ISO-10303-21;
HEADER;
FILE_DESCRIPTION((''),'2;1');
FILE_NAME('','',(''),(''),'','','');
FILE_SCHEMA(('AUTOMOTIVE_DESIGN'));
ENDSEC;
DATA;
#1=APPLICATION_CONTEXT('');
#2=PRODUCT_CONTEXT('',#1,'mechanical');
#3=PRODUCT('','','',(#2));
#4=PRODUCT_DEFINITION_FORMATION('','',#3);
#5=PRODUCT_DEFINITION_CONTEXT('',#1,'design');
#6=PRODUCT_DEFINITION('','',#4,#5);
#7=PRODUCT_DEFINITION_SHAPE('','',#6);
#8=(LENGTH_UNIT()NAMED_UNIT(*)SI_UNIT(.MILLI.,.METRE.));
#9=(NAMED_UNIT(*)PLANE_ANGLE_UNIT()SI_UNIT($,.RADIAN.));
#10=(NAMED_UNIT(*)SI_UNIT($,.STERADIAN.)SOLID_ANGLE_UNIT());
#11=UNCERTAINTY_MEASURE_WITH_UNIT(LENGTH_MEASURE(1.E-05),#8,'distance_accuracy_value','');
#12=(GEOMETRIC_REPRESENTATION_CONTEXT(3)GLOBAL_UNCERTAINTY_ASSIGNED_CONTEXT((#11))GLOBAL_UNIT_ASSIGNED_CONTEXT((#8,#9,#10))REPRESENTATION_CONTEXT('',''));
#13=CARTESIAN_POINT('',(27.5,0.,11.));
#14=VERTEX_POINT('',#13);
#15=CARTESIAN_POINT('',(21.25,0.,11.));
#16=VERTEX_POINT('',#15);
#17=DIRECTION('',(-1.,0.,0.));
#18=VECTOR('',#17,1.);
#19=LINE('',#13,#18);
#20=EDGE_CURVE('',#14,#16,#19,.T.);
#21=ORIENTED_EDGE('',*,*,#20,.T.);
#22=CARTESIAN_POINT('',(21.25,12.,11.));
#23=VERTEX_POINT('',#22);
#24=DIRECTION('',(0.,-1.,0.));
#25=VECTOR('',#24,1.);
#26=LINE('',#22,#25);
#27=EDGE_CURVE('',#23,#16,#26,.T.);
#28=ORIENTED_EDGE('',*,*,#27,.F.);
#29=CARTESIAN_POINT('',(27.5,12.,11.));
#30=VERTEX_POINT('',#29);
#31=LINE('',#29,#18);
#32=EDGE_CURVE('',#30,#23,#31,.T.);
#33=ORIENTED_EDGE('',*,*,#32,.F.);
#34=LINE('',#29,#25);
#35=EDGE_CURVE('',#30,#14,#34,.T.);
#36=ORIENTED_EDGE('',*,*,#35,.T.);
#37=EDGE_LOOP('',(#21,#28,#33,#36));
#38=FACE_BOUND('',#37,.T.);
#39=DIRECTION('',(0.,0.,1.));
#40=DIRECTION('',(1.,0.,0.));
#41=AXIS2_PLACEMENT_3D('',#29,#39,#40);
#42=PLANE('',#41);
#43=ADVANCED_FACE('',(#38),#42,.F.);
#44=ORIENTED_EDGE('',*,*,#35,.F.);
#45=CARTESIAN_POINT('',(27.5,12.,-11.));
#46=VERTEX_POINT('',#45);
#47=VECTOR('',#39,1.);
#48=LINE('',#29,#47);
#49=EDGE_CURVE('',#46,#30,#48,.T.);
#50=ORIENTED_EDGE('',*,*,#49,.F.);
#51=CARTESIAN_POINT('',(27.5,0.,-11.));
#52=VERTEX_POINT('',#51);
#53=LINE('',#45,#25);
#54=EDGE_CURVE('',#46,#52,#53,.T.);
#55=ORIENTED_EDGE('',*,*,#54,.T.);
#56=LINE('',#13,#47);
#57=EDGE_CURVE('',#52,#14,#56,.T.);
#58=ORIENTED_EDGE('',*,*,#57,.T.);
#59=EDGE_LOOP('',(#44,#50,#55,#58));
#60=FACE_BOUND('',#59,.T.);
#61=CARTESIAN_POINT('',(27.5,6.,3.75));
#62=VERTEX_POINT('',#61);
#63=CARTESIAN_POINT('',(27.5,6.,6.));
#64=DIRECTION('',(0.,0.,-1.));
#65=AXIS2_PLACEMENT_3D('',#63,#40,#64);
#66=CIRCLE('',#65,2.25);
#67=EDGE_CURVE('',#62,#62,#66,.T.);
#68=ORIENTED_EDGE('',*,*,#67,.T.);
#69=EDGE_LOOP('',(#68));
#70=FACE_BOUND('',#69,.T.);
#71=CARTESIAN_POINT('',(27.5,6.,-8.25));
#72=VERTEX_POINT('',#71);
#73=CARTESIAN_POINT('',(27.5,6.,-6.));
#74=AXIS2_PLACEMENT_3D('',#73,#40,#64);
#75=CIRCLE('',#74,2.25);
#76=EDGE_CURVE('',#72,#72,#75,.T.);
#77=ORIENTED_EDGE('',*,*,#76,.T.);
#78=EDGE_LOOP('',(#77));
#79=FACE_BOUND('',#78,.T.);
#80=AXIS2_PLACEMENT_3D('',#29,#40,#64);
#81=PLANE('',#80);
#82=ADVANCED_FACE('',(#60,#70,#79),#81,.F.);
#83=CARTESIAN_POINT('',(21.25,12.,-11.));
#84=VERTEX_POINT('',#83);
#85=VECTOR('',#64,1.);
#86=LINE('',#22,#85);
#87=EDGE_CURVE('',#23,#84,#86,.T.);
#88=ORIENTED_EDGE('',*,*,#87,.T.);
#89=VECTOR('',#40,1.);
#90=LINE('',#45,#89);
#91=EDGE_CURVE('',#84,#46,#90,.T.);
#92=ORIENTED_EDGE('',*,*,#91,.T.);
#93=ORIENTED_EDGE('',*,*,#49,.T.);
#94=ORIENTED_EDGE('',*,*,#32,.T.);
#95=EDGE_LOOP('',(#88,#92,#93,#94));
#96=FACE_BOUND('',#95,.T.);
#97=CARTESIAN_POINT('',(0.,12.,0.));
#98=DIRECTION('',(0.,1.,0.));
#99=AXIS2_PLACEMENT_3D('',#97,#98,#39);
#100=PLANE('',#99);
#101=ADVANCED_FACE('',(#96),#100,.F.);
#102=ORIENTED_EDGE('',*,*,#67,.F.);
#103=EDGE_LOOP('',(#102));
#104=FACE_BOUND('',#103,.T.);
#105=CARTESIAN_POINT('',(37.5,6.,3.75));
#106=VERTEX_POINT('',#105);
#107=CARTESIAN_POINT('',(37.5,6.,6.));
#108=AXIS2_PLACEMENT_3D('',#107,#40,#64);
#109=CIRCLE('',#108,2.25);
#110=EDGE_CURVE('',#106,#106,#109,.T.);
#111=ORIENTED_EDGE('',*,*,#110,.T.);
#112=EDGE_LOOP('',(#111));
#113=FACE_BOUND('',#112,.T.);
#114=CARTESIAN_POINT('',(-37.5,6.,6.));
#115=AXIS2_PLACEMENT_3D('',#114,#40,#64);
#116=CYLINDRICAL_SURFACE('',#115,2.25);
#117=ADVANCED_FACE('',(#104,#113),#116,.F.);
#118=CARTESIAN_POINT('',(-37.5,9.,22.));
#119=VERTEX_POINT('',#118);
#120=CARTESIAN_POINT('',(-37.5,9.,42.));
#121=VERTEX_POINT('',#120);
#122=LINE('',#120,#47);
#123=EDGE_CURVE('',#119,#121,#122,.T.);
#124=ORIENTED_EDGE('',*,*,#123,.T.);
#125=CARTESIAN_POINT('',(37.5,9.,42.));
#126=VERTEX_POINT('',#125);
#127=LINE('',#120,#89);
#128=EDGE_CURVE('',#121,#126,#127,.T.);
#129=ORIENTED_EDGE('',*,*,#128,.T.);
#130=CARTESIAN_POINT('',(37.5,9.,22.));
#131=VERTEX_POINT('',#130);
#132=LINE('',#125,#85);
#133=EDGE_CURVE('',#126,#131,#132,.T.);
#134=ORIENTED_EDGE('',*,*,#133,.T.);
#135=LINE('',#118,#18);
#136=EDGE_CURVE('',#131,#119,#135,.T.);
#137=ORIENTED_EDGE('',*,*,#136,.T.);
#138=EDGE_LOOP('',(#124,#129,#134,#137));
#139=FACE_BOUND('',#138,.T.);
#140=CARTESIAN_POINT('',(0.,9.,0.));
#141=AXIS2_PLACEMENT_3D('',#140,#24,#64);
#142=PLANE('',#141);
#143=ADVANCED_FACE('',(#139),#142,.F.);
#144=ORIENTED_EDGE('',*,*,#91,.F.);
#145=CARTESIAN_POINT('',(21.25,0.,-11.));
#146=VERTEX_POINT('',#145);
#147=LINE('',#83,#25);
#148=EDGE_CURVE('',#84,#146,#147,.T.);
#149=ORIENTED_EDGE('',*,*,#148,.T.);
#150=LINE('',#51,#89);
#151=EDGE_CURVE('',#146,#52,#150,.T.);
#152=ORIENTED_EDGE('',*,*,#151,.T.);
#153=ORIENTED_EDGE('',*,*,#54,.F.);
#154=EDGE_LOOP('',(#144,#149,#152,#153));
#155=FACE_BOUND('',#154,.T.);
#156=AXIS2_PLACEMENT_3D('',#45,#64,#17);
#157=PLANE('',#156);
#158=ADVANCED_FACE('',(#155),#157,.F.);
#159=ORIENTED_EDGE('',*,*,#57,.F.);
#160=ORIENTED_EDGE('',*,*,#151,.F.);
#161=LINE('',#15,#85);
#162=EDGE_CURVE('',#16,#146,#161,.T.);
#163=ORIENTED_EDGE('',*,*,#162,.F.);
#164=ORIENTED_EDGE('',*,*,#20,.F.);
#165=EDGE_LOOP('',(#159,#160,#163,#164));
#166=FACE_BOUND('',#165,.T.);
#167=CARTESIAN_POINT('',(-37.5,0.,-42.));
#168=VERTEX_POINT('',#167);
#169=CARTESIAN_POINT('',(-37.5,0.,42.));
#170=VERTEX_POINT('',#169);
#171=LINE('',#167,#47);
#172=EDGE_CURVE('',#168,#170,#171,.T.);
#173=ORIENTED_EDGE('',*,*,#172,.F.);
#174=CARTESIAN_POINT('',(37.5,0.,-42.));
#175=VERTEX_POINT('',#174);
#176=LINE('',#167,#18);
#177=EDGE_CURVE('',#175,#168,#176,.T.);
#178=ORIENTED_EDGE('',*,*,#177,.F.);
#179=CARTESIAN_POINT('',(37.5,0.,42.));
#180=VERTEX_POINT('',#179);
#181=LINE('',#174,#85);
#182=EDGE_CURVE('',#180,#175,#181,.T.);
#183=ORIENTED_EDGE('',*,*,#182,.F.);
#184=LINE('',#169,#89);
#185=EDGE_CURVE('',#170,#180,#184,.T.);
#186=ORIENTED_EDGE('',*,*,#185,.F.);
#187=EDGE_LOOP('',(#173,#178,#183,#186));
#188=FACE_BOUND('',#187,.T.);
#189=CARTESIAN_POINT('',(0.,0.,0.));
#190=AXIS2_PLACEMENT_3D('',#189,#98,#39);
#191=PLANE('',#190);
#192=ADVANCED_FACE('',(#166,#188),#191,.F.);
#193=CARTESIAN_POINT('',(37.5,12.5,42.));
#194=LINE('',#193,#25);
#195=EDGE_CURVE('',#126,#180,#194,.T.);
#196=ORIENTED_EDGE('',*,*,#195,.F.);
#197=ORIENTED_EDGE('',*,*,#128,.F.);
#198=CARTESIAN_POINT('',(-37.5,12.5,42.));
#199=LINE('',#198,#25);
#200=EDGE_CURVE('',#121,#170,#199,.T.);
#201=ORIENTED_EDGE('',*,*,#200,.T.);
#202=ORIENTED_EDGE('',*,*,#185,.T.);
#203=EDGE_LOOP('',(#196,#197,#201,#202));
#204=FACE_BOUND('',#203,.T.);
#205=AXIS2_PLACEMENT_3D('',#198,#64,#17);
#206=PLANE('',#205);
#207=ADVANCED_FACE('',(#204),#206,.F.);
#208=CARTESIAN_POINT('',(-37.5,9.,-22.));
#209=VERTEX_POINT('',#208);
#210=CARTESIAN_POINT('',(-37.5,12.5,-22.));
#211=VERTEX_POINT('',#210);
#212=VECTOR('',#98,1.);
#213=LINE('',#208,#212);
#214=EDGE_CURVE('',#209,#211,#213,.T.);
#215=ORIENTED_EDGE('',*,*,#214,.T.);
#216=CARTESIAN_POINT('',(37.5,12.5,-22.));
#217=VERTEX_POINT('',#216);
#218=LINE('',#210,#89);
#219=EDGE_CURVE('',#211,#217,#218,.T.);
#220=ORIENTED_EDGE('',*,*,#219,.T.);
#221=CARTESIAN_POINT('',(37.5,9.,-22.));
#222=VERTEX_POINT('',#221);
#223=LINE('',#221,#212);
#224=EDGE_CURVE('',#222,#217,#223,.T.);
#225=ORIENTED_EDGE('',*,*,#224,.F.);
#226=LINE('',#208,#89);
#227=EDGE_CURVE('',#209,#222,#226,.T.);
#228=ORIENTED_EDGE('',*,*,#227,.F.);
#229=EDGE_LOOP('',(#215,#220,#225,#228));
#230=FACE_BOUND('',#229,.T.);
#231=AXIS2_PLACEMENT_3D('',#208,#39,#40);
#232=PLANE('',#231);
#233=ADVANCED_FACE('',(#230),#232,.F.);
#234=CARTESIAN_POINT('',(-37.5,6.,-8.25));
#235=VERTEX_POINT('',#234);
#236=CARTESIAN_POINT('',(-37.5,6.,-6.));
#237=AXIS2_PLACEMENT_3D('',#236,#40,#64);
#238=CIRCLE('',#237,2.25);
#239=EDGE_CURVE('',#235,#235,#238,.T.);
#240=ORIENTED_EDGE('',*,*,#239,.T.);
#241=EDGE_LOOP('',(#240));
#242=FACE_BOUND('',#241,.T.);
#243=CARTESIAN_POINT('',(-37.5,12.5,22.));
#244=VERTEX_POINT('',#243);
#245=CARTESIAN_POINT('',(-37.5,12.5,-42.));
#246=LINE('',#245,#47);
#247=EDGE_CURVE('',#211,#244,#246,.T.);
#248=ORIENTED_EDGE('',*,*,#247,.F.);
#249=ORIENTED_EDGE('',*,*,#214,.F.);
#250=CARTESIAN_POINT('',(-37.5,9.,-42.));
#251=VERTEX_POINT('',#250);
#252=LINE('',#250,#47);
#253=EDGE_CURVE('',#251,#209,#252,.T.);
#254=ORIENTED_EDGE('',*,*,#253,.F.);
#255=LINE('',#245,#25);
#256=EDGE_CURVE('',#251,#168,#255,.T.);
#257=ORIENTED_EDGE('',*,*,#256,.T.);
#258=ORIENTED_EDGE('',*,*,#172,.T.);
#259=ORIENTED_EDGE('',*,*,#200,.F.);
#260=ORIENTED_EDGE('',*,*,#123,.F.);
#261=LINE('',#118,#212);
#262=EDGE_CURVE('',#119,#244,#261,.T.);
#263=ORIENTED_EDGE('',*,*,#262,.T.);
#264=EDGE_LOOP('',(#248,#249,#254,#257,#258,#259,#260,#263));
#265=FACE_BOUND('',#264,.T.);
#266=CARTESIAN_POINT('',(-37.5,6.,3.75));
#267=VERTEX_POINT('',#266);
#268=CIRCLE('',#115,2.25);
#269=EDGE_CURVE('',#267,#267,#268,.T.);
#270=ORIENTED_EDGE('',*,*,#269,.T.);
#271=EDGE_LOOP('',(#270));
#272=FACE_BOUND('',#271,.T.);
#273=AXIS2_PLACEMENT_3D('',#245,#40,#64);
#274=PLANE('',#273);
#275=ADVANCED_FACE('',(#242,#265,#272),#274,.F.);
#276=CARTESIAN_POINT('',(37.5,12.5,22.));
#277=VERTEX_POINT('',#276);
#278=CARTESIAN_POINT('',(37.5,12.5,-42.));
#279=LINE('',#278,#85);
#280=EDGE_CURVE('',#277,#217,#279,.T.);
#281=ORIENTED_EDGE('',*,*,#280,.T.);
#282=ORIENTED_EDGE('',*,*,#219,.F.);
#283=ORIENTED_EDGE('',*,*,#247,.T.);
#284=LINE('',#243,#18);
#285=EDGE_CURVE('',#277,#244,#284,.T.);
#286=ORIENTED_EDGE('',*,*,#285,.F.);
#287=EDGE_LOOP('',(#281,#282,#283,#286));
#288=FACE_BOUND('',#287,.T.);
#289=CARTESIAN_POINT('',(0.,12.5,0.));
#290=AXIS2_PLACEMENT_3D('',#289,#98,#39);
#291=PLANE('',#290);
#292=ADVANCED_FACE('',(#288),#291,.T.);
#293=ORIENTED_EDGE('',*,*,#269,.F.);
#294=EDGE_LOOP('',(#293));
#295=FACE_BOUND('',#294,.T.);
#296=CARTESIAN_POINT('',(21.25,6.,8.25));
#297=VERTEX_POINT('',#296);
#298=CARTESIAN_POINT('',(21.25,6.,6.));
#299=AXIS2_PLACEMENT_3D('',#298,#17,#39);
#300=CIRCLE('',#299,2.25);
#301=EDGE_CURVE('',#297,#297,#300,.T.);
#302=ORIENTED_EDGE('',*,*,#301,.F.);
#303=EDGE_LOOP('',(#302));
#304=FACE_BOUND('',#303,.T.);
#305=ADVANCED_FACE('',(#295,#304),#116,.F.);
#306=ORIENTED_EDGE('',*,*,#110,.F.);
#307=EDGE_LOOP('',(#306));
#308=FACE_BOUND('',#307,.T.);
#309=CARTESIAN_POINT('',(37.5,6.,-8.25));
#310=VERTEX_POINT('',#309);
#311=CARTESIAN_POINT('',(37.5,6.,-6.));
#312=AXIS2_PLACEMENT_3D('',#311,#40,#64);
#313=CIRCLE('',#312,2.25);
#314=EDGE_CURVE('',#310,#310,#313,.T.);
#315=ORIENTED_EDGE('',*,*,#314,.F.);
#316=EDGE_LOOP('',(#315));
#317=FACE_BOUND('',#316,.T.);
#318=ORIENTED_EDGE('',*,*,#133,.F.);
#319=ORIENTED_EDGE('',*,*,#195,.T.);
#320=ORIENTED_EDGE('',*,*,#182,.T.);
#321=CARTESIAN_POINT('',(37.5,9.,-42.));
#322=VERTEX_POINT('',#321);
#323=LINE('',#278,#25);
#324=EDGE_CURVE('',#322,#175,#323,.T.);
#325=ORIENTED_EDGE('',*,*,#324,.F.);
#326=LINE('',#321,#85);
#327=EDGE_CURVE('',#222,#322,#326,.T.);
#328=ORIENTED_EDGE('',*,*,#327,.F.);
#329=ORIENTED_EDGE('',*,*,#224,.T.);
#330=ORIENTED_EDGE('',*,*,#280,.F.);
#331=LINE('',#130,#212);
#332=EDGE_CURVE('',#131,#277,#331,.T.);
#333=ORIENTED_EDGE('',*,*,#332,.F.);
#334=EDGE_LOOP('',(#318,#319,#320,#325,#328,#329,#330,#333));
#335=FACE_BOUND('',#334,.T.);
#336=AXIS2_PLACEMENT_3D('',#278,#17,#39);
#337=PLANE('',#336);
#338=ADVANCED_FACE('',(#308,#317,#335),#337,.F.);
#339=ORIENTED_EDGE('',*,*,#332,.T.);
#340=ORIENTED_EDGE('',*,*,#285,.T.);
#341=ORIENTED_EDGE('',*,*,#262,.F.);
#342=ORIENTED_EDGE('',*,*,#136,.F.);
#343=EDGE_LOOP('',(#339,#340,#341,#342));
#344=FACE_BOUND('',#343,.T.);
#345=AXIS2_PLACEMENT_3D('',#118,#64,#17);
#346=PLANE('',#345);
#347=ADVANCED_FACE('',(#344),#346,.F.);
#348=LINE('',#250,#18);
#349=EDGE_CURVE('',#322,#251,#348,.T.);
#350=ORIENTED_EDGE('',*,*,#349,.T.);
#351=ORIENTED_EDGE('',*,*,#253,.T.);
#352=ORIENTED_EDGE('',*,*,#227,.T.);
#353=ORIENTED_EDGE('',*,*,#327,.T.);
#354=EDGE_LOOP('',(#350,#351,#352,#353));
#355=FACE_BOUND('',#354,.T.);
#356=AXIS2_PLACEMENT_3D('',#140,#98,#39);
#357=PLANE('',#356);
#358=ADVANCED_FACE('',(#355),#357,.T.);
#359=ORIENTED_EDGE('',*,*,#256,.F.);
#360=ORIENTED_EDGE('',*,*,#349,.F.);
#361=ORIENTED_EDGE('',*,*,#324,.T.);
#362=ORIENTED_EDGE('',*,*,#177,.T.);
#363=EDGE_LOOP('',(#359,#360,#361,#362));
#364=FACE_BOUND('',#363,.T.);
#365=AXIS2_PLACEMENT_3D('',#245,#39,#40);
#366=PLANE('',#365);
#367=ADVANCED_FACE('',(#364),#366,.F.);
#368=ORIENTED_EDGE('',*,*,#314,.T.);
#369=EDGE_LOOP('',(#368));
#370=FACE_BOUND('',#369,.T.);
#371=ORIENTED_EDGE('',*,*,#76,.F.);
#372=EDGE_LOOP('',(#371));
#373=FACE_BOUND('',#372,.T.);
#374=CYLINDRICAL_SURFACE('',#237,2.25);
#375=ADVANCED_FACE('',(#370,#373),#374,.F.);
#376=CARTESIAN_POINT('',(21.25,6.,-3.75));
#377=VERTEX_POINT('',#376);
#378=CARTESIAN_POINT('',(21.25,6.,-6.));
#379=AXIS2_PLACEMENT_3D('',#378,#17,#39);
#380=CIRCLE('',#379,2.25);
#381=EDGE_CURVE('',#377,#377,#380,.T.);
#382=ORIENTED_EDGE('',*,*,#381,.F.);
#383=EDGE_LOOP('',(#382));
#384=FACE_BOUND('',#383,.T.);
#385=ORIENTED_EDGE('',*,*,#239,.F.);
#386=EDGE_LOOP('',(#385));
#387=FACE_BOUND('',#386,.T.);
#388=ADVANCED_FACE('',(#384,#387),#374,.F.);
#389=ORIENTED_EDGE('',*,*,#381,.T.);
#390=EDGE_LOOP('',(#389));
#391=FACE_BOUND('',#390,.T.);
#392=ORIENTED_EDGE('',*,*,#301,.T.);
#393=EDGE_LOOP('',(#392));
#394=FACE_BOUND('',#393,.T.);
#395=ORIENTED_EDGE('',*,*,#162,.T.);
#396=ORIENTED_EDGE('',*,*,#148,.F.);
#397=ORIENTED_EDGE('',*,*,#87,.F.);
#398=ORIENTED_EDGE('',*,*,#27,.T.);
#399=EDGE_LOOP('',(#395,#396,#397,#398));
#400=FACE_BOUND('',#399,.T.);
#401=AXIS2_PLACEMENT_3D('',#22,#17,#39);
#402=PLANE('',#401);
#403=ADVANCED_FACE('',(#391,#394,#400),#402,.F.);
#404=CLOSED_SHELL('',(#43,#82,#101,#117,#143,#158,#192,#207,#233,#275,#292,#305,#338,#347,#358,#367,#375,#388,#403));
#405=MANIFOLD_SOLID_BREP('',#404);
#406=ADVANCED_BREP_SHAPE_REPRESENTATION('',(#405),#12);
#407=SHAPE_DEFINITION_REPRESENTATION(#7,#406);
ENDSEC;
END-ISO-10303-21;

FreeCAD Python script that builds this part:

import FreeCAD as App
import Part
import Sketcher
from FreeCAD import Vector
Q = App.Units.Quantity

doc = App.newDocument("Part")
params = doc.addObject("Spreadsheet::Sheet", "Params")
for row, (alias, value) in enumerate([
    ("sketch1_width", "75 mm"),
    ("sketch1_height", "84 mm"),
    ("pad1_length", "12.5 mm"),
    ("sketch2_height", "22 mm"),
    ("sketch2_width", "6.25 mm"),
    ("pocket1_length", "12 mm"),
    ("sketch3_diameter", "4.5 mm"),
    ("sketch4_width", "75 mm"),
    ("sketch4_height", "20 mm"),
    ("pocket3_length", "3.5 mm"),
], start=1):
    params.set(f"A{row}", alias)
    params.set(f"B{row}", "=" + value)
    params.setAlias(f"B{row}", alias)

body = doc.addObject("PartDesign::Body", "Body")

# Sketch on XZ plane
sketch1 = body.newObject("Sketcher::SketchObject", "Sketch")
sketch1.AttachmentSupport = (doc.getObject("XZ_Plane"), [""])
sketch1.MapMode = "FlatFace"
sketch1.addGeometry(Part.LineSegment(Vector(-38, -42, 0), Vector(-38, 42, 0)), False)
sketch1.addGeometry(Part.LineSegment(Vector(-38, 42, 0), Vector(38, 42, 0)), False)
sketch1.addGeometry(Part.LineSegment(Vector(38, 42, 0), Vector(38, -42, 0)), False)
sketch1.addGeometry(Part.LineSegment(Vector(38, -42, 0), Vector(-38, -42, 0)), False)
sketch1.addConstraint(Sketcher.Constraint("Coincident", 0, 2, 1, 1))
sketch1.addConstraint(Sketcher.Constraint("Coincident", 1, 2, 2, 1))
sketch1.addConstraint(Sketcher.Constraint("Coincident", 2, 2, 3, 1))
sketch1.addConstraint(Sketcher.Constraint("Coincident", 3, 2, 0, 1))
sketch1.addConstraint(Sketcher.Constraint("Vertical", 0))
sketch1.addConstraint(Sketcher.Constraint("Horizontal", 1))
sketch1.addConstraint(Sketcher.Constraint("Vertical", 2))
sketch1.addConstraint(Sketcher.Constraint("Horizontal", 3))
sketch1.addConstraint(Sketcher.Constraint("Symmetric", 0, 2, 2, 2, -1, 1))
sketch1.addConstraint(Sketcher.Constraint("DistanceX", 1, 1, 1, 2, Q("75 mm")))
sketch1.addConstraint(Sketcher.Constraint("DistanceY", 0, 1, 0, 2, Q("84 mm")))
sketch1.setExpression("Constraints[9]", "Params.sketch1_width")
sketch1.setExpression("Constraints[10]", "Params.sketch1_height")
pad1 = body.newObject("PartDesign::Pad", "Pad")
pad1.Profile = sketch1
pad1.setExpression("Length", "Params.pad1_length")
pad1.Reversed = True

# Sketch on XZ plane
sketch2 = body.newObject("Sketcher::SketchObject", "Sketch001")
sketch2.AttachmentSupport = (doc.getObject("XZ_Plane"), [""])
sketch2.MapMode = "FlatFace"
sketch2.addGeometry(Part.LineSegment(Vector(21, 11, 0), Vector(21, -11, 0)), False)
sketch2.addGeometry(Part.LineSegment(Vector(21, -11, 0), Vector(28, -11, 0)), False)
sketch2.addGeometry(Part.LineSegment(Vector(28, -11, 0), Vector(28, 11, 0)), False)
sketch2.addGeometry(Part.LineSegment(Vector(28, 11, 0), Vector(21, 11, 0)), False)
sketch2.addConstraint(Sketcher.Constraint("Coincident", 0, 2, 1, 1))
sketch2.addConstraint(Sketcher.Constraint("Coincident", 1, 2, 2, 1))
sketch2.addConstraint(Sketcher.Constraint("Coincident", 2, 2, 3, 1))
sketch2.addConstraint(Sketcher.Constraint("Coincident", 3, 2, 0, 1))
sketch2.addConstraint(Sketcher.Constraint("Vertical", 0))
sketch2.addConstraint(Sketcher.Constraint("Horizontal", 1))
sketch2.addConstraint(Sketcher.Constraint("Vertical", 2))
sketch2.addConstraint(Sketcher.Constraint("Horizontal", 3))
sketch2.addConstraint(Sketcher.Constraint("DistanceY", 0, 2, 0, 1, Q("22 mm")))
sketch2.addConstraint(Sketcher.Constraint("DistanceY", 0, 2, -1, 1, Q("11 mm")))
sketch2.addConstraint(Sketcher.Constraint("DistanceX", 1, 1, 1, 2, Q("6.25 mm")))
sketch2.addConstraint(Sketcher.Constraint("DistanceX", -1, 1, 1, 2, Q("27.5 mm")))
sketch2.setExpression("Constraints[8]", "Params.sketch2_height")
sketch2.setExpression("Constraints[10]", "Params.sketch2_width")
pocket1 = body.newObject("PartDesign::Pocket", "Pocket")
pocket1.Profile = sketch2
pocket1.setExpression("Length", "Params.pocket1_length")

# Sketch on YZ plane
sketch3 = body.newObject("Sketcher::SketchObject", "Sketch002")
sketch3.AttachmentSupport = (doc.getObject("YZ_Plane"), [""])
sketch3.MapMode = "FlatFace"
sketch3.AttachmentOffset = App.Placement(Vector(0, 0, 37.5), App.Rotation())
sketch3.addGeometry(Part.Circle(Vector(6, 6, 0), Vector(0, 0, 1), 2.2), False)
sketch3.addGeometry(Part.Circle(Vector(6, -6, 0), Vector(0, 0, 1), 2.2), False)
sketch3.addConstraint(Sketcher.Constraint("Equal", 0, 1))
sketch3.addConstraint(Sketcher.Constraint("Symmetric", 0, 3, 1, 3, -1))
sketch3.addConstraint(Sketcher.Constraint("Diameter", 0, Q("4.5 mm")))
sketch3.addConstraint(Sketcher.Constraint("DistanceX", -1, 1, 0, 3, Q("6 mm")))
sketch3.addConstraint(Sketcher.Constraint("DistanceY", -1, 1, 0, 3, Q("6 mm")))
sketch3.setExpression("Constraints[2]", "Params.sketch3_diameter")
pocket2 = body.newObject("PartDesign::Pocket", "Pocket001")
pocket2.Profile = sketch3
pocket2.Type = "ThroughAll"

# Sketch on XZ plane
sketch4 = body.newObject("Sketcher::SketchObject", "Sketch003")
sketch4.AttachmentSupport = (doc.getObject("XZ_Plane"), [""])
sketch4.MapMode = "FlatFace"
sketch4.AttachmentOffset = App.Placement(Vector(0, 0, -12.5), App.Rotation())
sketch4.addGeometry(Part.LineSegment(Vector(-37.5, -42, 0), Vector(-37.5, -22, 0)), False)
sketch4.addGeometry(Part.LineSegment(Vector(-37.5, -22, 0), Vector(37.5, -22, 0)), False)
sketch4.addGeometry(Part.LineSegment(Vector(37.5, -22, 0), Vector(37.5, -42, 0)), False)
sketch4.addGeometry(Part.LineSegment(Vector(37.5, -42, 0), Vector(-37.5, -42, 0)), False)
sketch4.addGeometry(Part.LineSegment(Vector(-37.5, 22, 0), Vector(-37.5, 42, 0)), False)
sketch4.addGeometry(Part.LineSegment(Vector(-37.5, 42, 0), Vector(37.5, 42, 0)), False)
sketch4.addGeometry(Part.LineSegment(Vector(37.5, 42, 0), Vector(37.5, 22, 0)), False)
sketch4.addGeometry(Part.LineSegment(Vector(37.5, 22, 0), Vector(-37.5, 22, 0)), False)
sketch4.addConstraint(Sketcher.Constraint("Coincident", 0, 2, 1, 1))
sketch4.addConstraint(Sketcher.Constraint("Coincident", 1, 2, 2, 1))
sketch4.addConstraint(Sketcher.Constraint("Coincident", 2, 2, 3, 1))
sketch4.addConstraint(Sketcher.Constraint("Coincident", 3, 2, 0, 1))
sketch4.addConstraint(Sketcher.Constraint("Coincident", 4, 2, 5, 1))
sketch4.addConstraint(Sketcher.Constraint("Coincident", 5, 2, 6, 1))
sketch4.addConstraint(Sketcher.Constraint("Coincident", 6, 2, 7, 1))
sketch4.addConstraint(Sketcher.Constraint("Coincident", 7, 2, 4, 1))
sketch4.addConstraint(Sketcher.Constraint("Vertical", 0))
sketch4.addConstraint(Sketcher.Constraint("Horizontal", 1))
sketch4.addConstraint(Sketcher.Constraint("Vertical", 2))
sketch4.addConstraint(Sketcher.Constraint("Horizontal", 3))
sketch4.addConstraint(Sketcher.Constraint("Vertical", 4))
sketch4.addConstraint(Sketcher.Constraint("Horizontal", 5))
sketch4.addConstraint(Sketcher.Constraint("Vertical", 6))
sketch4.addConstraint(Sketcher.Constraint("Horizontal", 7))
sketch4.addConstraint(Sketcher.Constraint("Symmetric", 2, 2, 4, 2, -1, 1))
sketch4.addConstraint(Sketcher.Constraint("Symmetric", 0, 2, 6, 2, -1, 1))
sketch4.addConstraint(Sketcher.Constraint("Vertical", 3, 2, 4, 2))
sketch4.addConstraint(Sketcher.Constraint("DistanceX", 1, 1, 1, 2, Q("75 mm")))
sketch4.addConstraint(Sketcher.Constraint("DistanceY", 0, 1, 0, 2, Q("20 mm")))
sketch4.addConstraint(Sketcher.Constraint("DistanceY", 0, 2, -1, 1, Q("22 mm")))
sketch4.setExpression("Constraints[19]", "Params.sketch4_width")
sketch4.setExpression("Constraints[20]", "Params.sketch4_height")
pocket3 = body.newObject("PartDesign::Pocket", "Pocket002")
pocket3.Profile = sketch4
pocket3.setExpression("Length", "Params.pocket3_length")
pocket3.Reversed = True

doc.recompute()
